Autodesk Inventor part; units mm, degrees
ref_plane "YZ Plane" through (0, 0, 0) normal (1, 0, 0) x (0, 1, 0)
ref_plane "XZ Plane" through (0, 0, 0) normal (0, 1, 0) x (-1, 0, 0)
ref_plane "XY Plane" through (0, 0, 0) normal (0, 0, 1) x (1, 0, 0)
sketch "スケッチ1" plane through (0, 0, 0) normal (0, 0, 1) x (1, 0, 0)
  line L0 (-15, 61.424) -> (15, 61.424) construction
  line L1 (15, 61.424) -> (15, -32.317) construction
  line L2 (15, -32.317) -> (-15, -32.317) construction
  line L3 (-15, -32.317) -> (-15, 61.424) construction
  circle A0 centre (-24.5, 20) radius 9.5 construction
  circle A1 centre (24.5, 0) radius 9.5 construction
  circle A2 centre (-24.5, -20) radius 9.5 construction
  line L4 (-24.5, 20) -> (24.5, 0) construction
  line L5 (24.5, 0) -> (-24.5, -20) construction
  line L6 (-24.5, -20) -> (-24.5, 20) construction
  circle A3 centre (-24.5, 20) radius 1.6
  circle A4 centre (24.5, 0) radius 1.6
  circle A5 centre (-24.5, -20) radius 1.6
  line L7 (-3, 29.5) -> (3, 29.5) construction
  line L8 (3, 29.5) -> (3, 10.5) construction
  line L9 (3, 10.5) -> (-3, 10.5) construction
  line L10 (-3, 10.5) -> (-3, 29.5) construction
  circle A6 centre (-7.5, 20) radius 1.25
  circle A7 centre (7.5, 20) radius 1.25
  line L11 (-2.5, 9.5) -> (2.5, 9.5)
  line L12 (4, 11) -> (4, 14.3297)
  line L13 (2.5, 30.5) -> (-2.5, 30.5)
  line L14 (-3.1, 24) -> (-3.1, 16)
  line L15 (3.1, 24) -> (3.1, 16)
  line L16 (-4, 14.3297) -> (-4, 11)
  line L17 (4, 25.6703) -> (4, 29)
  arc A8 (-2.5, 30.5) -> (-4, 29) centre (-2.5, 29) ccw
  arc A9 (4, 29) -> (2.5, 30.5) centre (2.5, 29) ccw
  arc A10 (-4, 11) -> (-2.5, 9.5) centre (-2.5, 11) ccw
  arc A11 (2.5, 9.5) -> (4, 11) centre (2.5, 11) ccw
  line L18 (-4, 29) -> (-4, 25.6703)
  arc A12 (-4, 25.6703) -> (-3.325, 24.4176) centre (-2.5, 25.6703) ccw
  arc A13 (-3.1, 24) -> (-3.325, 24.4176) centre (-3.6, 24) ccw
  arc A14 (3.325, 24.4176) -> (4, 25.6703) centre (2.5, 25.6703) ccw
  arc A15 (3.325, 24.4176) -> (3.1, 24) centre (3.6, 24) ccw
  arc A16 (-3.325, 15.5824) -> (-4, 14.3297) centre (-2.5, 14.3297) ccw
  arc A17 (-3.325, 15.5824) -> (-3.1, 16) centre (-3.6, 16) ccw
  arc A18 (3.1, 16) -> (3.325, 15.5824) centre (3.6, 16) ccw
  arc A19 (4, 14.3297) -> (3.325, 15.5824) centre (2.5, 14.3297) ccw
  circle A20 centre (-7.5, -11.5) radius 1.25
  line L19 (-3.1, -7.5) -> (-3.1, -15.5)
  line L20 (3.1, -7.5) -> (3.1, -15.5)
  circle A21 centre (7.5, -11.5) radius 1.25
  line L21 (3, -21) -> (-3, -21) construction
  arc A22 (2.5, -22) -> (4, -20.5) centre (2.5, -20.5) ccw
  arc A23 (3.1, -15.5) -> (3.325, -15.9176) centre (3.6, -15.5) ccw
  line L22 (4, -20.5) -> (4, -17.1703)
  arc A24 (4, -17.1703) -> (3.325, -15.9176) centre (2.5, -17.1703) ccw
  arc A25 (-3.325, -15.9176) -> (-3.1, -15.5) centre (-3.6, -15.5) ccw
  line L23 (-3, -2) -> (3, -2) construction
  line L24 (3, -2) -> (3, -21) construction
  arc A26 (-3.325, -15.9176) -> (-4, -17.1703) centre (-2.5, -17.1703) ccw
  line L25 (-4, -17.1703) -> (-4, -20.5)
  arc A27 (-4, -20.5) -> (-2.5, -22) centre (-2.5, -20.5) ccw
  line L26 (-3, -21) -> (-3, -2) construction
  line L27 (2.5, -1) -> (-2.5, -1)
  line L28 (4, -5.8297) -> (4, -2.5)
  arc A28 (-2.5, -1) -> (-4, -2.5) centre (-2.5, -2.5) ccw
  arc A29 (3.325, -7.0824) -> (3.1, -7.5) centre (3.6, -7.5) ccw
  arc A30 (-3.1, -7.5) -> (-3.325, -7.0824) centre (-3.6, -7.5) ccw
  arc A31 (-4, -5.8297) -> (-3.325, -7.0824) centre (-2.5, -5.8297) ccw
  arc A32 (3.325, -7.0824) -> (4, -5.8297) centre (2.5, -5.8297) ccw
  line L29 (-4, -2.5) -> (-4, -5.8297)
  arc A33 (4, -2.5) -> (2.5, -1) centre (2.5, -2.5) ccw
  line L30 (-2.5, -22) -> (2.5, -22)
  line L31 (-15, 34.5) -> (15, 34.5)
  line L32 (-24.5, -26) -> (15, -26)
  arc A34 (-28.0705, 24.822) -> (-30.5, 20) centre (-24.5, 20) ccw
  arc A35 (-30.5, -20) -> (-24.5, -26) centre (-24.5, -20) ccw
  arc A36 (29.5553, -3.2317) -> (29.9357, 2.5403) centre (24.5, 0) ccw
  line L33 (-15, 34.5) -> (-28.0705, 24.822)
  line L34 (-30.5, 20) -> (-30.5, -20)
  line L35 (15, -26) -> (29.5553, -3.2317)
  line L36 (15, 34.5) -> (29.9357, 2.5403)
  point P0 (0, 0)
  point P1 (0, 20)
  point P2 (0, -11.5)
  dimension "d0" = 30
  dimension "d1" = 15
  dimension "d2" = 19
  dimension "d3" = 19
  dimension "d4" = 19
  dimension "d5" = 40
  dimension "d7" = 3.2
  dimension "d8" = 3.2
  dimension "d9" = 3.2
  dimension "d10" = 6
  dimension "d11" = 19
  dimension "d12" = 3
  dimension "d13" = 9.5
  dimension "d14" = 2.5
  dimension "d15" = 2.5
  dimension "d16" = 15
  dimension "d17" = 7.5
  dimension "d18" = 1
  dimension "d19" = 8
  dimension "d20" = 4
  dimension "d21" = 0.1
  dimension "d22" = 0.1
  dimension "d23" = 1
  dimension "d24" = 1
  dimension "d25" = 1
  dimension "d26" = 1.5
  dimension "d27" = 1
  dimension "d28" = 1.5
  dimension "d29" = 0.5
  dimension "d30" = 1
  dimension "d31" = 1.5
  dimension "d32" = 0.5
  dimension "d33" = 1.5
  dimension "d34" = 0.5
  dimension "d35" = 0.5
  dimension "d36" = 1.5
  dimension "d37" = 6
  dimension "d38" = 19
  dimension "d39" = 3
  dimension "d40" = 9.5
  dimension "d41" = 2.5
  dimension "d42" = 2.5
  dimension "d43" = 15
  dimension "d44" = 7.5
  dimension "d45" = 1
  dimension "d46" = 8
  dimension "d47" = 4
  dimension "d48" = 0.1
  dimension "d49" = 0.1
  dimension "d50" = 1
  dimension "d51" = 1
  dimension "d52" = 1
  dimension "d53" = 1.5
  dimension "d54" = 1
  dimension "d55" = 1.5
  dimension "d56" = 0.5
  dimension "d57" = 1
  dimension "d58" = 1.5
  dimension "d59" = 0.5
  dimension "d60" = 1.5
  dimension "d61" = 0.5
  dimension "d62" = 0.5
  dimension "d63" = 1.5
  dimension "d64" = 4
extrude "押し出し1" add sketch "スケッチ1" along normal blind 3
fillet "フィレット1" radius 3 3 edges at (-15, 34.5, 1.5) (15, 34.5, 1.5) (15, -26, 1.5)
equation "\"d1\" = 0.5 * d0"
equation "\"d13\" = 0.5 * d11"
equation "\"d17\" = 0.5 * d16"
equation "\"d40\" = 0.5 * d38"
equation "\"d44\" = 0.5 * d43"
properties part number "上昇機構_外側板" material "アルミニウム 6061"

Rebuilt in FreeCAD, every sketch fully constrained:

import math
import FreeCAD as App
import Part
import Sketcher
Q = App.Units.Quantity


def edges_at(feature, points):
    """Names of the edges that pass closest to the given points."""
    edges = feature.Shape.Edges
    near = lambda p: min(range(len(edges)), key=lambda i: edges[i].distToShape(Part.Vertex(*p))[0])
    return sorted({f"Edge{near(p) + 1}" for p in points})

doc = App.newDocument("Part")
body = doc.addObject("PartDesign::Body", "Body")

sketch1 = body.newObject("Sketcher::SketchObject", "Sketch")
sketch1.AttachmentSupport = (doc.getObject("XY_Plane"), [""])
sketch1.MapMode = "FlatFace"
sketch1.addGeometry(Part.LineSegment(App.Vector(15, 34.5, 0), App.Vector(-15, 34.5, 0)), False)
sketch1.addGeometry(Part.LineSegment(App.Vector(-15, 34.5, 0), App.Vector(-28.0705, 24.822, 0)), False)
sketch1.addGeometry(Part.ArcOfCircle(Part.Circle(App.Vector(-24.5, 20, 0), App.Vector(0, 0, 1), 6.000013), math.radians(126.518482), math.radians(180)), False)
sketch1.addGeometry(Part.LineSegment(App.Vector(-30.5, 20, 0), App.Vector(-30.5, -20, 0)), False)
sketch1.addGeometry(Part.ArcOfCircle(Part.Circle(App.Vector(-24.5, -20, 0), App.Vector(0, 0, 1), 6), math.radians(180), math.radians(270)), False)
sketch1.addGeometry(Part.LineSegment(App.Vector(-24.5, -26, 0), App.Vector(15, -26, 0)), False)
sketch1.addGeometry(Part.LineSegment(App.Vector(15, -26, 0), App.Vector(29.5553, -3.2317, 0)), False)
sketch1.addGeometry(Part.ArcOfCircle(Part.Circle(App.Vector(24.5, 0, 0), App.Vector(0, 0, 1), 5.999995), math.radians(-32.589548), math.radians(25.048392)), False)
sketch1.addGeometry(Part.LineSegment(App.Vector(29.9357, 2.5403, 0), App.Vector(15, 34.5, 0)), False)
sketch1.addGeometry(Part.Circle(App.Vector(-24.5, -20, 0), App.Vector(0, 0, 1), 1.6), False)
sketch1.addGeometry(Part.Circle(App.Vector(-7.5, -11.5, 0), App.Vector(0, 0, 1), 1.25), False)
sketch1.addGeometry(Part.LineSegment(App.Vector(-3.1, -15.5, 0), App.Vector(-3.1, -7.5, 0)), False)
sketch1.addGeometry(Part.ArcOfCircle(Part.Circle(App.Vector(-3.6, -7.5, 0), App.Vector(0, 0, 1), 0.5), math.radians(0), math.radians(56.634101)), False)
sketch1.addGeometry(Part.ArcOfCircle(Part.Circle(App.Vector(-2.5, -5.8297, 0), App.Vector(0, 0, 1), 1.5), math.radians(180), math.radians(236.632)), False)
sketch1.addGeometry(Part.LineSegment(App.Vector(-4, -5.8297, 0), App.Vector(-4, -2.5, 0)), False)
sketch1.addGeometry(Part.ArcOfCircle(Part.Circle(App.Vector(-2.5, -2.5, 0), App.Vector(0, 0, 1), 1.5), math.radians(90), math.radians(180)), False)
sketch1.addGeometry(Part.LineSegment(App.Vector(-2.5, -1, 0), App.Vector(2.5, -1, 0)), False)
sketch1.addGeometry(Part.ArcOfCircle(Part.Circle(App.Vector(2.5, -2.5, 0), App.Vector(0, 0, 1), 1.5), math.radians(0), math.radians(90)), False)
sketch1.addGeometry(Part.LineSegment(App.Vector(4, -2.5, 0), App.Vector(4, -5.8297, 0)), False)
sketch1.addGeometry(Part.ArcOfCircle(Part.Circle(App.Vector(2.5, -5.8297, 0), App.Vector(0, 0, 1), 1.499961), math.radians(-56.632), math.radians(0)), False)
sketch1.addGeometry(Part.ArcOfCircle(Part.Circle(App.Vector(3.6, -7.5, 0), App.Vector(0, 0, 1), 0.500015), math.radians(123.365899), math.radians(180)), False)
sketch1.addGeometry(Part.LineSegment(App.Vector(3.1, -7.5, 0), App.Vector(3.1, -15.5, 0)), False)
sketch1.addGeometry(Part.ArcOfCircle(Part.Circle(App.Vector(3.6, -15.5, 0), App.Vector(0, 0, 1), 0.5), math.radians(180), math.radians(236.634101)), False)
sketch1.addGeometry(Part.ArcOfCircle(Part.Circle(App.Vector(2.5, -17.1703, 0), App.Vector(0, 0, 1), 1.5), math.radians(0), math.radians(56.632)), False)
sketch1.addGeometry(Part.LineSegment(App.Vector(4, -17.1703, 0), App.Vector(4, -20.5, 0)), False)
sketch1.addGeometry(Part.ArcOfCircle(Part.Circle(App.Vector(2.5, -20.5, 0), App.Vector(0, 0, 1), 1.5), math.radians(-90), math.radians(0)), False)
sketch1.addGeometry(Part.LineSegment(App.Vector(2.5, -22, 0), App.Vector(-2.5, -22, 0)), False)
sketch1.addGeometry(Part.ArcOfCircle(Part.Circle(App.Vector(-2.5, -20.5, 0), App.Vector(0, 0, 1), 1.5), math.radians(180), math.radians(270)), False)
sketch1.addGeometry(Part.LineSegment(App.Vector(-4, -20.5, 0), App.Vector(-4, -17.1703, 0)), False)
sketch1.addGeometry(Part.ArcOfCircle(Part.Circle(App.Vector(-2.5, -17.1703, 0), App.Vector(0, 0, 1), 1.499961), math.radians(123.368), math.radians(180)), False)
sketch1.addGeometry(Part.ArcOfCircle(Part.Circle(App.Vector(-3.6, -15.5, 0), App.Vector(0, 0, 1), 0.500015), math.radians(-56.634101), math.radians(0)), False)
sketch1.addGeometry(Part.Circle(App.Vector(7.5, -11.5, 0), App.Vector(0, 0, 1), 1.25), False)
sketch1.addGeometry(Part.Circle(App.Vector(24.5, 0, 0), App.Vector(0, 0, 1), 1.6), False)
sketch1.addGeometry(Part.Circle(App.Vector(-24.5, 20, 0), App.Vector(0, 0, 1), 1.6), False)
sketch1.addGeometry(Part.Circle(App.Vector(-7.5, 20, 0), App.Vector(0, 0, 1), 1.25), False)
sketch1.addGeometry(Part.LineSegment(App.Vector(2.5, 9.5, 0), App.Vector(-2.5, 9.5, 0)), False)
sketch1.addGeometry(Part.ArcOfCircle(Part.Circle(App.Vector(-2.5, 11, 0), App.Vector(0, 0, 1), 1.5), math.radians(180), math.radians(270)), False)
sketch1.addGeometry(Part.LineSegment(App.Vector(-4, 11, 0), App.Vector(-4, 14.3297, 0)), False)
sketch1.addGeometry(Part.ArcOfCircle(Part.Circle(App.Vector(-2.5, 14.3297, 0), App.Vector(0, 0, 1), 1.499961), math.radians(123.368), math.radians(180)), False)
sketch1.addGeometry(Part.ArcOfCircle(Part.Circle(App.Vector(-3.6, 16, 0), App.Vector(0, 0, 1), 0.500015), math.radians(-56.634101), math.radians(0)), False)
sketch1.addGeometry(Part.LineSegment(App.Vector(-3.1, 16, 0), App.Vector(-3.1, 24, 0)), False)
sketch1.addGeometry(Part.ArcOfCircle(Part.Circle(App.Vector(-3.6, 24, 0), App.Vector(0, 0, 1), 0.5), math.radians(0), math.radians(56.634101)), False)
sketch1.addGeometry(Part.ArcOfCircle(Part.Circle(App.Vector(-2.5, 25.6703, 0), App.Vector(0, 0, 1), 1.5), math.radians(180), math.radians(236.632)), False)
sketch1.addGeometry(Part.LineSegment(App.Vector(-4, 25.6703, 0), App.Vector(-4, 29, 0)), False)
sketch1.addGeometry(Part.ArcOfCircle(Part.Circle(App.Vector(-2.5, 29, 0), App.Vector(0, 0, 1), 1.5), math.radians(90), math.radians(180)), False)
sketch1.addGeometry(Part.LineSegment(App.Vector(-2.5, 30.5, 0), App.Vector(2.5, 30.5, 0)), False)
sketch1.addGeometry(Part.ArcOfCircle(Part.Circle(App.Vector(2.5, 29, 0), App.Vector(0, 0, 1), 1.5), math.radians(0), math.radians(90)), False)
sketch1.addGeometry(Part.LineSegment(App.Vector(4, 29, 0), App.Vector(4, 25.6703, 0)), False)
sketch1.addGeometry(Part.ArcOfCircle(Part.Circle(App.Vector(2.5, 25.6703, 0), App.Vector(0, 0, 1), 1.499961), math.radians(-56.632), math.radians(0)), False)
sketch1.addGeometry(Part.ArcOfCircle(Part.Circle(App.Vector(3.6, 24, 0), App.Vector(0, 0, 1), 0.500015), math.radians(123.365899), math.radians(180)), False)
sketch1.addGeometry(Part.LineSegment(App.Vector(3.1, 24, 0), App.Vector(3.1, 16, 0)), False)
sketch1.addGeometry(Part.ArcOfCircle(Part.Circle(App.Vector(3.6, 16, 0), App.Vector(0, 0, 1), 0.5), math.radians(180), math.radians(236.634101)), False)
sketch1.addGeometry(Part.ArcOfCircle(Part.Circle(App.Vector(2.5, 14.3297, 0), App.Vector(0, 0, 1), 1.5), math.radians(0), math.radians(56.632)), False)
sketch1.addGeometry(Part.LineSegment(App.Vector(4, 14.3297, 0), App.Vector(4, 11, 0)), False)
sketch1.addGeometry(Part.ArcOfCircle(Part.Circle(App.Vector(2.5, 11, 0), App.Vector(0, 0, 1), 1.5), math.radians(-90), math.radians(0)), False)
sketch1.addGeometry(Part.Circle(App.Vector(7.5, 20, 0), App.Vector(0, 0, 1), 1.25), False)
sketch1.addConstraint(Sketcher.Constraint("Coincident", 0, 2, 1, 1))
sketch1.addConstraint(Sketcher.Constraint("Tangent", 1, 2, 2, 1))
sketch1.addConstraint(Sketcher.Constraint("Tangent", 2, 2, 3, 1))
sketch1.addConstraint(Sketcher.Constraint("Tangent", 3, 2, 4, 1))
sketch1.addConstraint(Sketcher.Constraint("Tangent", 4, 2, 5, 1))
sketch1.addConstraint(Sketcher.Constraint("Coincident", 5, 2, 6, 1))
sketch1.addConstraint(Sketcher.Constraint("Tangent", 6, 2, 7, 1))
sketch1.addConstraint(Sketcher.Constraint("Tangent", 7, 2, 8, 1))
sketch1.addConstraint(Sketcher.Constraint("Coincident", 8, 2, 0, 1))
sketch1.addConstraint(Sketcher.Constraint("Tangent", 11, 2, 12, 1))
sketch1.addConstraint(Sketcher.Constraint("Tangent", 12, 2, 13, 2))
sketch1.addConstraint(Sketcher.Constraint("Tangent", 13, 1, 14, 1))
sketch1.addConstraint(Sketcher.Constraint("Tangent", 14, 2, 15, 2))
sketch1.addConstraint(Sketcher.Constraint("Tangent", 15, 1, 16, 1))
sketch1.addConstraint(Sketcher.Constraint("Tangent", 16, 2, 17, 2))
sketch1.addConstraint(Sketcher.Constraint("Tangent", 17, 1, 18, 1))
sketch1.addConstraint(Sketcher.Constraint("Tangent", 18, 2, 19, 2))
sketch1.addConstraint(Sketcher.Constraint("Tangent", 19, 1, 20, 1))
sketch1.addConstraint(Sketcher.Constraint("Tangent", 20, 2, 21, 1))
sketch1.addConstraint(Sketcher.Constraint("Tangent", 21, 2, 22, 1))
sketch1.addConstraint(Sketcher.Constraint("Tangent", 22, 2, 23, 2))
sketch1.addConstraint(Sketcher.Constraint("Tangent", 23, 1, 24, 1))
sketch1.addConstraint(Sketcher.Constraint("Tangent", 24, 2, 25, 2))
sketch1.addConstraint(Sketcher.Constraint("Tangent", 25, 1, 26, 1))
sketch1.addConstraint(Sketcher.Constraint("Tangent", 26, 2, 27, 2))
sketch1.addConstraint(Sketcher.Constraint("Tangent", 27, 1, 28, 1))
sketch1.addConstraint(Sketcher.Constraint("Tangent", 28, 2, 29, 2))
sketch1.addConstraint(Sketcher.Constraint("Tangent", 29, 1, 30, 1))
sketch1.addConstraint(Sketcher.Constraint("Tangent", 30, 2, 11, 1))
sketch1.addConstraint(Sketcher.Constraint("Tangent", 35, 2, 36, 2))
sketch1.addConstraint(Sketcher.Constraint("Tangent", 36, 1, 37, 1))
sketch1.addConstraint(Sketcher.Constraint("Tangent", 37, 2, 38, 2))
sketch1.addConstraint(Sketcher.Constraint("Tangent", 38, 1, 39, 1))
sketch1.addConstraint(Sketcher.Constraint("Tangent", 39, 2, 40, 1))
sketch1.addConstraint(Sketcher.Constraint("Tangent", 40, 2, 41, 1))
sketch1.addConstraint(Sketcher.Constraint("Tangent", 41, 2, 42, 2))
sketch1.addConstraint(Sketcher.Constraint("Tangent", 42, 1, 43, 1))
sketch1.addConstraint(Sketcher.Constraint("Tangent", 43, 2, 44, 2))
sketch1.addConstraint(Sketcher.Constraint("Tangent", 44, 1, 45, 1))
sketch1.addConstraint(Sketcher.Constraint("Tangent", 45, 2, 46, 2))
sketch1.addConstraint(Sketcher.Constraint("Tangent", 46, 1, 47, 1))
sketch1.addConstraint(Sketcher.Constraint("Tangent", 47, 2, 48, 2))
sketch1.addConstraint(Sketcher.Constraint("Tangent", 48, 1, 49, 1))
sketch1.addConstraint(Sketcher.Constraint("Tangent", 49, 2, 50, 1))
sketch1.addConstraint(Sketcher.Constraint("Tangent", 50, 2, 51, 1))
sketch1.addConstraint(Sketcher.Constraint("Tangent", 51, 2, 52, 2))
sketch1.addConstraint(Sketcher.Constraint("Tangent", 52, 1, 53, 1))
sketch1.addConstraint(Sketcher.Constraint("Tangent", 53, 2, 54, 2))
sketch1.addConstraint(Sketcher.Constraint("Tangent", 54, 1, 35, 1))
sketch1.addConstraint(Sketcher.Constraint("Horizontal", 0))
sketch1.addConstraint(Sketcher.Constraint("Vertical", 3))
sketch1.addConstraint(Sketcher.Constraint("Horizontal", 5))
sketch1.addConstraint(Sketcher.Constraint("Vertical", 11))
sketch1.addConstraint(Sketcher.Constraint("Vertical", 14))
sketch1.addConstraint(Sketcher.Constraint("Horizontal", 16))
sketch1.addConstraint(Sketcher.Constraint("Vertical", 18))
sketch1.addConstraint(Sketcher.Constraint("Vertical", 21))
sketch1.addConstraint(Sketcher.Constraint("Vertical", 24))
sketch1.addConstraint(Sketcher.Constraint("Horizontal", 26))
sketch1.addConstraint(Sketcher.Constraint("Vertical", 28))
sketch1.addConstraint(Sketcher.Constraint("Horizontal", 35))
sketch1.addConstraint(Sketcher.Constraint("Vertical", 37))
sketch1.addConstraint(Sketcher.Constraint("Vertical", 40))
sketch1.addConstraint(Sketcher.Constraint("Vertical", 43))
sketch1.addConstraint(Sketcher.Constraint("Horizontal", 45))
sketch1.addConstraint(Sketcher.Constraint("Vertical", 47))
sketch1.addConstraint(Sketcher.Constraint("Vertical", 50))
sketch1.addConstraint(Sketcher.Constraint("Vertical", 53))
sketch1.addConstraint(Sketcher.Constraint("Coincident", 9, 3, 4, 3))
sketch1.addConstraint(Sketcher.Constraint("Coincident", 32, 3, 7, 3))
sketch1.addConstraint(Sketcher.Constraint("Coincident", 33, 3, 2, 3))
sketch1.addConstraint(Sketcher.Constraint("Equal", 2, 4))
sketch1.addConstraint(Sketcher.Constraint("Equal", 4, 7))
sketch1.addConstraint(Sketcher.Constraint("Equal", 13, 15))
sketch1.addConstraint(Sketcher.Constraint("Equal", 15, 17))
sketch1.addConstraint(Sketcher.Constraint("Equal", 17, 19))
sketch1.addConstraint(Sketcher.Constraint("Equal", 12, 20))
sketch1.addConstraint(Sketcher.Constraint("Equal", 20, 22))
sketch1.addConstraint(Sketcher.Constraint("Equal", 19, 23))
sketch1.addConstraint(Sketcher.Constraint("Equal", 23, 25))
sketch1.addConstraint(Sketcher.Constraint("Equal", 25, 27))
sketch1.addConstraint(Sketcher.Constraint("Equal", 27, 29))
sketch1.addConstraint(Sketcher.Constraint("Equal", 22, 30))
sketch1.addConstraint(Sketcher.Constraint("Equal", 10, 31))
sketch1.addConstraint(Sketcher.Constraint("Equal", 9, 32))
sketch1.addConstraint(Sketcher.Constraint("Equal", 32, 33))
sketch1.addConstraint(Sketcher.Constraint("Equal", 31, 34))
sketch1.addConstraint(Sketcher.Constraint("Equal", 29, 36))
sketch1.addConstraint(Sketcher.Constraint("Equal", 36, 38))
sketch1.addConstraint(Sketcher.Constraint("Equal", 30, 39))
sketch1.addConstraint(Sketcher.Constraint("Equal", 39, 41))
sketch1.addConstraint(Sketcher.Constraint("Equal", 38, 42))
sketch1.addConstraint(Sketcher.Constraint("Equal", 42, 44))
sketch1.addConstraint(Sketcher.Constraint("Equal", 44, 46))
sketch1.addConstraint(Sketcher.Constraint("Equal", 46, 48))
sketch1.addConstraint(Sketcher.Constraint("Equal", 41, 49))
sketch1.addConstraint(Sketcher.Constraint("Equal", 49, 51))
sketch1.addConstraint(Sketcher.Constraint("Equal", 48, 52))
sketch1.addConstraint(Sketcher.Constraint("Equal", 52, 54))
sketch1.addConstraint(Sketcher.Constraint("Equal", 34, 55))
sketch1.addConstraint(Sketcher.Constraint("Symmetric", 13, 3, 19, 3, -2))
sketch1.addConstraint(Sketcher.Constraint("Symmetric", 23, 3, 29, 3, -2))
sketch1.addConstraint(Sketcher.Constraint("Symmetric", 10, 3, 31, 3, -2))
sketch1.addConstraint(Sketcher.Constraint("Symmetric", 42, 3, 48, 3, -2))
sketch1.addConstraint(Sketcher.Constraint("Symmetric", 39, 3, 51, 3, -2))
sketch1.addConstraint(Sketcher.Constraint("Symmetric", 34, 3, 55, 3, -2))
sketch1.addConstraint(Sketcher.Constraint("PointOnObject", 7, 3, -1))
sketch1.addConstraint(Sketcher.Constraint("Horizontal", 12, 3, 20, 3))
sketch1.addConstraint(Sketcher.Constraint("Horizontal", 33, 3, 34, 3))
sketch1.addConstraint(Sketcher.Constraint("Horizontal", 38, 3, 52, 3))
sketch1.addConstraint(Sketcher.Constraint("Vertical", 19, 3, 23, 3))
sketch1.addConstraint(Sketcher.Constraint("Vertical", 10, 3, 34, 3))
sketch1.addConstraint(Sketcher.Constraint("Vertical", 29, 3, 36, 3))
sketch1.addConstraint(Sketcher.Constraint("Vertical", 30, 3, 39, 3))
sketch1.addConstraint(Sketcher.Constraint("Vertical", 38, 3, 42, 3))
sketch1.addConstraint(Sketcher.Constraint("Vertical", 5, 2, 8, 2))
sketch1.addConstraint(Sketcher.Constraint("Equal", 18, 24))
sketch1.addConstraint(Sketcher.Constraint("Equal", 28, 37))
sketch1.addConstraint(Sketcher.Constraint("Equal", 21, 40))
sketch1.addConstraint(Sketcher.Constraint("Equal", 37, 43))
sketch1.addConstraint(Sketcher.Constraint("Radius", 2, Q("6 mm")))
sketch1.addConstraint(Sketcher.Constraint("Diameter", 9, Q("3.2 mm")))
sketch1.addConstraint(Sketcher.Constraint("Diameter", 10, Q("2.5 mm")))
sketch1.addConstraint(Sketcher.Constraint("Radius", 12, Q("0.5 mm")))
sketch1.addConstraint(Sketcher.Constraint("Radius", 13, Q("1.5 mm")))
sketch1.addConstraint(Sketcher.Constraint("DistanceX", 0, 2, 0, 1, Q("30 mm")))
sketch1.addConstraint(Sketcher.Constraint("DistanceY", 3, 2, 3, 1, Q("40 mm")))
sketch1.addConstraint(Sketcher.Constraint("DistanceY", 11, 1, 11, 2, Q("8 mm")))
sketch1.addConstraint(Sketcher.Constraint("DistanceX", 0, 2, -1, 1, Q("15 mm")))
sketch1.addConstraint(Sketcher.Constraint("DistanceX", 13, 1, -1, 1, Q("4 mm")))
sketch1.addConstraint(Sketcher.Constraint("DistanceY", 15, 1, -1, 1, Q("1 mm")))
sketch1.addConstraint(Sketcher.Constraint("DistanceX", 10, 3, -1, 1, Q("7.5 mm")))
sketch1.addConstraint(Sketcher.Constraint("DistanceY", 12, 3, -1, 1, Q("7.5 mm")))
sketch1.addConstraint(Sketcher.Constraint("DistanceY", -1, 1, 35, 2, Q("9.5 mm")))
sketch1.addConstraint(Sketcher.Constraint("DistanceX", 5, 1, 5, 2, Q("39.5 mm")))
sketch1.addConstraint(Sketcher.Constraint("DistanceY", -1, 1, 2, 3, Q("20 mm")))
sketch1.addConstraint(Sketcher.Constraint("DistanceX", -1, 1, 7, 3, Q("24.5 mm")))
sketch1.addConstraint(Sketcher.Constraint("DistanceY", 10, 3, -1, 1, Q("11.5 mm")))
sketch1.addConstraint(Sketcher.Constraint("DistanceX", 12, 3, -1, 1, Q("3.6 mm")))
sketch1.addConstraint(Sketcher.Constraint("DistanceY", -1, 1, 0, 2, Q("34.5 mm")))
pad1 = body.newObject("PartDesign::Pad", "Pad")
pad1.Profile = sketch1
pad1.Length = 3
doc.recompute()

fillet = body.newObject("PartDesign::Fillet", "Fillet")
fillet.Base = (pad1, edges_at(pad1, [(-15, 34.5, 1.5), (15, 34.5, 1.5), (15, -26, 1.5)]))
fillet.Radius = 3

doc.recompute()
